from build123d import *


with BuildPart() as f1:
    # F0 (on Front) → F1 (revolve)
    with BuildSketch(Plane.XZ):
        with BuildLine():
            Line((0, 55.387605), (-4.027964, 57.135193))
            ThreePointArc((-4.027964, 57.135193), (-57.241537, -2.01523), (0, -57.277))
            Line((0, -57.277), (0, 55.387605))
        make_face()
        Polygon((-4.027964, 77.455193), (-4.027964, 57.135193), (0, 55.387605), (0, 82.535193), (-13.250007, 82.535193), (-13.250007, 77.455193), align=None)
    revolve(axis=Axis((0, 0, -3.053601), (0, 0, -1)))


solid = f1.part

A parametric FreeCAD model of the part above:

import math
import FreeCAD as App
import Part
import Sketcher
from FreeCAD import Vector
Q = App.Units.Quantity

doc = App.newDocument("Part")
body = doc.addObject("PartDesign::Body", "Body")

# Sketch on XZ plane
sketch1 = body.newObject("Sketcher::SketchObject", "Sketch")
sketch1.AttachmentSupport = (doc.getObject("XZ_Plane"), [""])
sketch1.MapMode = "FlatFace"
sketch1.addGeometry(Part.ArcOfCircle(Part.Circle(Vector(0, 0, 0), Vector(0, 0, 1), 57), math.radians(94), math.radians(270)), False)
sketch1.addGeometry(Part.LineSegment(Vector(0, -57, 0), Vector(0, 83, 0)), False)
sketch1.addGeometry(Part.LineSegment(Vector(0, 83, 0), Vector(-13, 83, 0)), False)
sketch1.addGeometry(Part.LineSegment(Vector(-13, 83, 0), Vector(-13, 77, 0)), False)
sketch1.addGeometry(Part.LineSegment(Vector(-13, 77, 0), Vector(-4, 77, 0)), False)
sketch1.addGeometry(Part.LineSegment(Vector(-4, 77, 0), Vector(-4, 57, 0)), False)
sketch1.addConstraint(Sketcher.Constraint("Coincident", 0, 2, 1, 1))
sketch1.addConstraint(Sketcher.Constraint("Coincident", 1, 2, 2, 1))
sketch1.addConstraint(Sketcher.Constraint("Coincident", 2, 2, 3, 1))
sketch1.addConstraint(Sketcher.Constraint("Coincident", 3, 2, 4, 1))
sketch1.addConstraint(Sketcher.Constraint("Coincident", 4, 2, 5, 1))
sketch1.addConstraint(Sketcher.Constraint("Coincident", 5, 2, 0, 1))
sketch1.addConstraint(Sketcher.Constraint("Vertical", 1))
sketch1.addConstraint(Sketcher.Constraint("Horizontal", 2))
sketch1.addConstraint(Sketcher.Constraint("Vertical", 3))
sketch1.addConstraint(Sketcher.Constraint("Horizontal", 4))
sketch1.addConstraint(Sketcher.Constraint("Vertical", 5))
sketch1.addConstraint(Sketcher.Constraint("Coincident", 0, 3, -1, 1))
sketch1.addConstraint(Sketcher.Constraint("PointOnObject", 0, 2, -2))
sketch1.addConstraint(Sketcher.Constraint("DistanceY", 3, 2, 3, 1, Q("0.2 in")))
sketch1.addConstraint(Sketcher.Constraint("DistanceY", 5, 2, 5, 1, Q("0.8 in")))
sketch1.addConstraint(Sketcher.Constraint("Radius", 0, Q("2.255 in")))
sketch1.addConstraint(Sketcher.Constraint("DistanceX", 2, 2, 2, 1, 13.250007))
sketch1.addConstraint(Sketcher.Constraint("DistanceX", 4, 1, 4, 2, 9.222043))
revolution = body.newObject("PartDesign::Revolution", "Revolution")
revolution.Profile = sketch1
revolution.ReferenceAxis = (sketch1, ["V_Axis"])
revolution.Angle = 360

doc.recompute()
